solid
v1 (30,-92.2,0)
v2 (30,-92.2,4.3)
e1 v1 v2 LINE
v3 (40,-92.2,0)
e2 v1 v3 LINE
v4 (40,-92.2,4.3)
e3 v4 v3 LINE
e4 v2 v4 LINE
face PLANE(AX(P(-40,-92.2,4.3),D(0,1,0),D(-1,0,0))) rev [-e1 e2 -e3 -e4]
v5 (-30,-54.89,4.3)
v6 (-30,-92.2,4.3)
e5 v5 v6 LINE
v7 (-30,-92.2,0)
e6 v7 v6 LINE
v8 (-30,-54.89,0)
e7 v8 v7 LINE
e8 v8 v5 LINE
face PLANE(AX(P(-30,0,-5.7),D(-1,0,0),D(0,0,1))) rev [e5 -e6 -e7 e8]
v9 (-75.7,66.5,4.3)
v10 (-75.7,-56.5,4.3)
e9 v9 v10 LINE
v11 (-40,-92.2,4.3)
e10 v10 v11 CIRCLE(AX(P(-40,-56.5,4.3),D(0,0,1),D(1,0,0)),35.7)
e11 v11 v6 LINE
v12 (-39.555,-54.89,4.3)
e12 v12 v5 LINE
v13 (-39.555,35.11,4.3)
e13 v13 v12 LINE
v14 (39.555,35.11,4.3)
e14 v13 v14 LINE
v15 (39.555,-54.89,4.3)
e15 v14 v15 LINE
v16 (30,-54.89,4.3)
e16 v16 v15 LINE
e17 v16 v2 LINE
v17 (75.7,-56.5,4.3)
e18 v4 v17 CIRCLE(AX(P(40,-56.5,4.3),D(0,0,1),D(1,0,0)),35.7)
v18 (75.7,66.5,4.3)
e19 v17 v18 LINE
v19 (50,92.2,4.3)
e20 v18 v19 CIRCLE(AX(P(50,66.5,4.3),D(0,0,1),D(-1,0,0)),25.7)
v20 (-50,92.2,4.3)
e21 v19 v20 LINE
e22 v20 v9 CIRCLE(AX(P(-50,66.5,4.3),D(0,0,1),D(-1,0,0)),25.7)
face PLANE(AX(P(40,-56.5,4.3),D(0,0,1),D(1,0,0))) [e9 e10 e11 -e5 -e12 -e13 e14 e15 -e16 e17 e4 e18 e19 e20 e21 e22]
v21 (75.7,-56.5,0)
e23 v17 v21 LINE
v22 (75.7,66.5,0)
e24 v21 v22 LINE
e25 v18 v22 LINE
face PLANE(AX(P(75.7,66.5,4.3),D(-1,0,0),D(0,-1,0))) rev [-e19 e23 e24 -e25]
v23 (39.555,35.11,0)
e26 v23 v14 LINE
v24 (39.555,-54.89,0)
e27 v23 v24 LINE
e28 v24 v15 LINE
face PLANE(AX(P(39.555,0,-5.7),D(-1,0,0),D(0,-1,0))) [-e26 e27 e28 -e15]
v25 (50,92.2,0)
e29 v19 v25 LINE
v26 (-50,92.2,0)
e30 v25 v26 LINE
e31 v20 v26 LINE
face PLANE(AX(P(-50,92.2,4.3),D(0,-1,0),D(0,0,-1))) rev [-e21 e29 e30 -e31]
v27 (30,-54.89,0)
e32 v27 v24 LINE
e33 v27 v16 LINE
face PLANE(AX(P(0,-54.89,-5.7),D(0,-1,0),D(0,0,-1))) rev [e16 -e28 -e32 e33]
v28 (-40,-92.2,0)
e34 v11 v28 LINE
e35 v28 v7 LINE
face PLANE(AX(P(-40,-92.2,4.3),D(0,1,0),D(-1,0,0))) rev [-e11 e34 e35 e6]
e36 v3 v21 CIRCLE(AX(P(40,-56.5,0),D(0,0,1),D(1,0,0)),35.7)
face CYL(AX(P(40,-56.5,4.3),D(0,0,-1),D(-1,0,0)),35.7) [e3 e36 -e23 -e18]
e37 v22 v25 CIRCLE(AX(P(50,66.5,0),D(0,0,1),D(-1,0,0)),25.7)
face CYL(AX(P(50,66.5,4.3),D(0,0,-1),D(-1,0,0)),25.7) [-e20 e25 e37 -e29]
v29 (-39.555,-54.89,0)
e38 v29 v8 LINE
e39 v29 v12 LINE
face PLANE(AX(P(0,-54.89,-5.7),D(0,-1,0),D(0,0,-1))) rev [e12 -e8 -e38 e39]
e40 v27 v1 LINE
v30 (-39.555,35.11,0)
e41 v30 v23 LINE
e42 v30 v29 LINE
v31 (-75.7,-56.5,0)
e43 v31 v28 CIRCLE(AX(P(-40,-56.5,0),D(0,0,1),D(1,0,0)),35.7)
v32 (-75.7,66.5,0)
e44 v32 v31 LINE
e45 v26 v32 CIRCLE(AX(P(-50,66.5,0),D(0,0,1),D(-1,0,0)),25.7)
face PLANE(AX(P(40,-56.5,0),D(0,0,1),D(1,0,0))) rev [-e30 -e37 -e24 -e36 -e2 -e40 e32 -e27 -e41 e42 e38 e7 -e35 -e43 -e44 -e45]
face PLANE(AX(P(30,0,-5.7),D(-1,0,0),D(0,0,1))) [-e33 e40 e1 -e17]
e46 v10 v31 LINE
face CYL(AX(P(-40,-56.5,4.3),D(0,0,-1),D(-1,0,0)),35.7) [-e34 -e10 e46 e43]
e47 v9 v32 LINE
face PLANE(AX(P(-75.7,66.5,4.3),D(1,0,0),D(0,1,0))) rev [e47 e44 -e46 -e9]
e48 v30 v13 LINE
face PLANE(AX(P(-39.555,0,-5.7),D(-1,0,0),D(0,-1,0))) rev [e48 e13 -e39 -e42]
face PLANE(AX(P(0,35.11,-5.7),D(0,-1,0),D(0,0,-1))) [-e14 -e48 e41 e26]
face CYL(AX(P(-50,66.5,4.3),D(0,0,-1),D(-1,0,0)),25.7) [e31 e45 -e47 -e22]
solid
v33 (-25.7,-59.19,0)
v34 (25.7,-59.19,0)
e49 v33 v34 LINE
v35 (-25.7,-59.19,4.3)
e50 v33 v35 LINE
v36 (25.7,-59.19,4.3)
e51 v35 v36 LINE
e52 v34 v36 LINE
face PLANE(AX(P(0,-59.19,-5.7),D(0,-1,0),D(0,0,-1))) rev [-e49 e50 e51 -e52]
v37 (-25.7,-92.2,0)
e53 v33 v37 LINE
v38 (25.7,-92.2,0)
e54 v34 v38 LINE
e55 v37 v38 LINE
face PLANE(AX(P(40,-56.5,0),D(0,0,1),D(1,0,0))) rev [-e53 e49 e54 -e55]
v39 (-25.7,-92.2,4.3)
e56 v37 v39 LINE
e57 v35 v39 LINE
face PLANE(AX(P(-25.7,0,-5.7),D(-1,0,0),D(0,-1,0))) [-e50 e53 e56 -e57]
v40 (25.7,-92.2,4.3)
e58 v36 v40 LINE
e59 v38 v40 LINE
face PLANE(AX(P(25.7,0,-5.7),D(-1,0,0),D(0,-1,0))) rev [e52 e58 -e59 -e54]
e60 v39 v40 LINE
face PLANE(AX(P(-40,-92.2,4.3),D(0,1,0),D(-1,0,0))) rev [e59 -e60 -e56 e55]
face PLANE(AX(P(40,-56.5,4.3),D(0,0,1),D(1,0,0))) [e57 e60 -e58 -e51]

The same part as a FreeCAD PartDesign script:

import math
import FreeCAD as App
import Part
import Sketcher

doc = App.newDocument("Part")
body = doc.addObject("PartDesign::Body", "Body")
body.AllowCompound = True

# Sketch on XY plane
sketch1 = body.newObject("Sketcher::SketchObject", "Sketch")
sketch1.AttachmentSupport = (doc.getObject("XY_Plane"), [""])
sketch1.MapMode = "FlatFace"
sketch1.addGeometry([
    Part.ArcOfCircle(Part.Circle(App.Vector(40, -56.5, 0), App.Vector(0, 0, 1), 35.7), math.radians(-90), math.radians(0)),  # 0
    Part.LineSegment(App.Vector(75.7, -56.5, 0), App.Vector(75.7, 66.5, 0)),  # 1
    Part.ArcOfCircle(Part.Circle(App.Vector(50, 66.5, 0), App.Vector(0, 0, 1), 25.7), math.radians(0), math.radians(90)),  # 2
    Part.LineSegment(App.Vector(50, 92.2, 0), App.Vector(-50, 92.2, 0)),  # 3
    Part.ArcOfCircle(Part.Circle(App.Vector(-50, 66.5, 0), App.Vector(0, 0, 1), 25.7), math.radians(90), math.radians(180)),  # 4
    Part.LineSegment(App.Vector(-75.7, 66.5, 0), App.Vector(-75.7, -56.5, 0)),  # 5
    Part.ArcOfCircle(Part.Circle(App.Vector(-40, -56.5, 0), App.Vector(0, 0, 1), 35.7), math.radians(-180), math.radians(-90)),  # 6
    Part.LineSegment(App.Vector(-40, -92.2, 0), App.Vector(40, -92.2, 0)),  # 7
], False)
sketch1.addConstraint([
    Sketcher.Constraint("Tangent", 0, 2, 1, 1),
    Sketcher.Constraint("Tangent", 1, 2, 2, 1),
    Sketcher.Constraint("Tangent", 2, 2, 3, 1),
    Sketcher.Constraint("Tangent", 3, 2, 4, 1),
    Sketcher.Constraint("Tangent", 4, 2, 5, 1),
    Sketcher.Constraint("Tangent", 5, 2, 6, 1),
    Sketcher.Constraint("Tangent", 6, 2, 7, 1),
    Sketcher.Constraint("Tangent", 7, 2, 0, 1),
    Sketcher.Constraint("Vertical", 1),
    Sketcher.Constraint("Horizontal", 3),
    Sketcher.Constraint("Vertical", 5),
    Sketcher.Constraint("Horizontal", 7),
    Sketcher.Constraint("Equal", 2, 4),
    Sketcher.Constraint("Equal", 0, 6),
    Sketcher.Constraint("Radius", 0, 35.7),
    Sketcher.Constraint("Radius", 2, 25.7),
    Sketcher.Constraint("DistanceX", 3, 2, 3, 1, 100.0),
    Sketcher.Constraint("DistanceY", 1, 1, 1, 2, 123.0),
    Sketcher.Constraint("DistanceX", -1, 1, 0, 3, 40.0),
    Sketcher.Constraint("DistanceY", 0, 3, -1, 1, 56.5),
])
pad1 = body.newObject("PartDesign::Pad", "Pad")
pad1.Profile = sketch1
pad1.Length = 4.3

# Sketch on XY plane
sketch2 = body.newObject("Sketcher::SketchObject", "Sketch001")
sketch2.AttachmentSupport = (doc.getObject("XY_Plane"), [""])
sketch2.MapMode = "FlatFace"
sketch2.AttachmentOffset = App.Placement(App.Vector(0, 0, 4.3), App.Rotation())
sketch2.addGeometry([
    Part.LineSegment(App.Vector(-39.555, 35.11, 0), App.Vector(-39.555, -54.89, 0)),  # 0
    Part.LineSegment(App.Vector(-39.555, -54.89, 0), App.Vector(-30, -54.89, 0)),  # 1
    Part.LineSegment(App.Vector(-30, -54.89, 0), App.Vector(-30, -92.2, 0)),  # 2
    Part.LineSegment(App.Vector(-30, -92.2, 0), App.Vector(-25.7, -92.2, 0)),  # 3
    Part.LineSegment(App.Vector(-25.7, -92.2, 0), App.Vector(-25.7, -59.19, 0)),  # 4
    Part.LineSegment(App.Vector(-25.7, -59.19, 0), App.Vector(25.7, -59.19, 0)),  # 5
    Part.LineSegment(App.Vector(25.7, -59.19, 0), App.Vector(25.7, -92.2, 0)),  # 6
    Part.LineSegment(App.Vector(25.7, -92.2, 0), App.Vector(30, -92.2, 0)),  # 7
    Part.LineSegment(App.Vector(30, -92.2, 0), App.Vector(30, -54.89, 0)),  # 8
    Part.LineSegment(App.Vector(30, -54.89, 0), App.Vector(39.555, -54.89, 0)),  # 9
    Part.LineSegment(App.Vector(39.555, -54.89, 0), App.Vector(39.555, 35.11, 0)),  # 10
    Part.LineSegment(App.Vector(39.555, 35.11, 0), App.Vector(-39.555, 35.11, 0)),  # 11
], False)
sketch2.addConstraint([
    Sketcher.Constraint("Coincident", 0, 2, 1, 1),
    Sketcher.Constraint("Coincident", 1, 2, 2, 1),
    Sketcher.Constraint("Coincident", 2, 2, 3, 1),
    Sketcher.Constraint("Coincident", 3, 2, 4, 1),
    Sketcher.Constraint("Coincident", 4, 2, 5, 1),
    Sketcher.Constraint("Coincident", 5, 2, 6, 1),
    Sketcher.Constraint("Coincident", 6, 2, 7, 1),
    Sketcher.Constraint("Coincident", 7, 2, 8, 1),
    Sketcher.Constraint("Coincident", 8, 2, 9, 1),
    Sketcher.Constraint("Coincident", 9, 2, 10, 1),
    Sketcher.Constraint("Coincident", 10, 2, 11, 1),
    Sketcher.Constraint("Coincident", 11, 2, 0, 1),
    Sketcher.Constraint("Vertical", 0),
    Sketcher.Constraint("Horizontal", 1),
    Sketcher.Constraint("Vertical", 2),
    Sketcher.Constraint("Horizontal", 3),
    Sketcher.Constraint("Vertical", 4),
    Sketcher.Constraint("Horizontal", 5),
    Sketcher.Constraint("Vertical", 6),
    Sketcher.Constraint("Horizontal", 7),
    Sketcher.Constraint("Vertical", 8),
    Sketcher.Constraint("Horizontal", 9),
    Sketcher.Constraint("Vertical", 10),
    Sketcher.Constraint("Horizontal", 11),
    Sketcher.Constraint("Symmetric", 3, 2, 6, 2, -2),
    Sketcher.Constraint("Symmetric", 1, 2, 8, 2, -2),
    Sketcher.Constraint("Equal", 1, 9),
    Sketcher.Constraint("DistanceY", 0, 2, 0, 1, 90.0),
    Sketcher.Constraint("DistanceX", 3, 1, 3, 2, 4.3),
    Sketcher.Constraint("DistanceX", 5, 1, 5, 2, 51.4),
    Sketcher.Constraint("DistanceX", 11, 2, 11, 1, 79.11),
    Sketcher.Constraint("DistanceY", 2, 2, 2, 1, 37.31),
    Sketcher.Constraint("DistanceY", 4, 1, 4, 2, 33.01),
    Sketcher.Constraint("DistanceY", 2, 2, -1, 1, 92.2),
])
pocket1 = body.newObject("PartDesign::Pocket", "Pocket")
pocket1.Profile = sketch2
pocket1.Length = 10

doc.recompute()
